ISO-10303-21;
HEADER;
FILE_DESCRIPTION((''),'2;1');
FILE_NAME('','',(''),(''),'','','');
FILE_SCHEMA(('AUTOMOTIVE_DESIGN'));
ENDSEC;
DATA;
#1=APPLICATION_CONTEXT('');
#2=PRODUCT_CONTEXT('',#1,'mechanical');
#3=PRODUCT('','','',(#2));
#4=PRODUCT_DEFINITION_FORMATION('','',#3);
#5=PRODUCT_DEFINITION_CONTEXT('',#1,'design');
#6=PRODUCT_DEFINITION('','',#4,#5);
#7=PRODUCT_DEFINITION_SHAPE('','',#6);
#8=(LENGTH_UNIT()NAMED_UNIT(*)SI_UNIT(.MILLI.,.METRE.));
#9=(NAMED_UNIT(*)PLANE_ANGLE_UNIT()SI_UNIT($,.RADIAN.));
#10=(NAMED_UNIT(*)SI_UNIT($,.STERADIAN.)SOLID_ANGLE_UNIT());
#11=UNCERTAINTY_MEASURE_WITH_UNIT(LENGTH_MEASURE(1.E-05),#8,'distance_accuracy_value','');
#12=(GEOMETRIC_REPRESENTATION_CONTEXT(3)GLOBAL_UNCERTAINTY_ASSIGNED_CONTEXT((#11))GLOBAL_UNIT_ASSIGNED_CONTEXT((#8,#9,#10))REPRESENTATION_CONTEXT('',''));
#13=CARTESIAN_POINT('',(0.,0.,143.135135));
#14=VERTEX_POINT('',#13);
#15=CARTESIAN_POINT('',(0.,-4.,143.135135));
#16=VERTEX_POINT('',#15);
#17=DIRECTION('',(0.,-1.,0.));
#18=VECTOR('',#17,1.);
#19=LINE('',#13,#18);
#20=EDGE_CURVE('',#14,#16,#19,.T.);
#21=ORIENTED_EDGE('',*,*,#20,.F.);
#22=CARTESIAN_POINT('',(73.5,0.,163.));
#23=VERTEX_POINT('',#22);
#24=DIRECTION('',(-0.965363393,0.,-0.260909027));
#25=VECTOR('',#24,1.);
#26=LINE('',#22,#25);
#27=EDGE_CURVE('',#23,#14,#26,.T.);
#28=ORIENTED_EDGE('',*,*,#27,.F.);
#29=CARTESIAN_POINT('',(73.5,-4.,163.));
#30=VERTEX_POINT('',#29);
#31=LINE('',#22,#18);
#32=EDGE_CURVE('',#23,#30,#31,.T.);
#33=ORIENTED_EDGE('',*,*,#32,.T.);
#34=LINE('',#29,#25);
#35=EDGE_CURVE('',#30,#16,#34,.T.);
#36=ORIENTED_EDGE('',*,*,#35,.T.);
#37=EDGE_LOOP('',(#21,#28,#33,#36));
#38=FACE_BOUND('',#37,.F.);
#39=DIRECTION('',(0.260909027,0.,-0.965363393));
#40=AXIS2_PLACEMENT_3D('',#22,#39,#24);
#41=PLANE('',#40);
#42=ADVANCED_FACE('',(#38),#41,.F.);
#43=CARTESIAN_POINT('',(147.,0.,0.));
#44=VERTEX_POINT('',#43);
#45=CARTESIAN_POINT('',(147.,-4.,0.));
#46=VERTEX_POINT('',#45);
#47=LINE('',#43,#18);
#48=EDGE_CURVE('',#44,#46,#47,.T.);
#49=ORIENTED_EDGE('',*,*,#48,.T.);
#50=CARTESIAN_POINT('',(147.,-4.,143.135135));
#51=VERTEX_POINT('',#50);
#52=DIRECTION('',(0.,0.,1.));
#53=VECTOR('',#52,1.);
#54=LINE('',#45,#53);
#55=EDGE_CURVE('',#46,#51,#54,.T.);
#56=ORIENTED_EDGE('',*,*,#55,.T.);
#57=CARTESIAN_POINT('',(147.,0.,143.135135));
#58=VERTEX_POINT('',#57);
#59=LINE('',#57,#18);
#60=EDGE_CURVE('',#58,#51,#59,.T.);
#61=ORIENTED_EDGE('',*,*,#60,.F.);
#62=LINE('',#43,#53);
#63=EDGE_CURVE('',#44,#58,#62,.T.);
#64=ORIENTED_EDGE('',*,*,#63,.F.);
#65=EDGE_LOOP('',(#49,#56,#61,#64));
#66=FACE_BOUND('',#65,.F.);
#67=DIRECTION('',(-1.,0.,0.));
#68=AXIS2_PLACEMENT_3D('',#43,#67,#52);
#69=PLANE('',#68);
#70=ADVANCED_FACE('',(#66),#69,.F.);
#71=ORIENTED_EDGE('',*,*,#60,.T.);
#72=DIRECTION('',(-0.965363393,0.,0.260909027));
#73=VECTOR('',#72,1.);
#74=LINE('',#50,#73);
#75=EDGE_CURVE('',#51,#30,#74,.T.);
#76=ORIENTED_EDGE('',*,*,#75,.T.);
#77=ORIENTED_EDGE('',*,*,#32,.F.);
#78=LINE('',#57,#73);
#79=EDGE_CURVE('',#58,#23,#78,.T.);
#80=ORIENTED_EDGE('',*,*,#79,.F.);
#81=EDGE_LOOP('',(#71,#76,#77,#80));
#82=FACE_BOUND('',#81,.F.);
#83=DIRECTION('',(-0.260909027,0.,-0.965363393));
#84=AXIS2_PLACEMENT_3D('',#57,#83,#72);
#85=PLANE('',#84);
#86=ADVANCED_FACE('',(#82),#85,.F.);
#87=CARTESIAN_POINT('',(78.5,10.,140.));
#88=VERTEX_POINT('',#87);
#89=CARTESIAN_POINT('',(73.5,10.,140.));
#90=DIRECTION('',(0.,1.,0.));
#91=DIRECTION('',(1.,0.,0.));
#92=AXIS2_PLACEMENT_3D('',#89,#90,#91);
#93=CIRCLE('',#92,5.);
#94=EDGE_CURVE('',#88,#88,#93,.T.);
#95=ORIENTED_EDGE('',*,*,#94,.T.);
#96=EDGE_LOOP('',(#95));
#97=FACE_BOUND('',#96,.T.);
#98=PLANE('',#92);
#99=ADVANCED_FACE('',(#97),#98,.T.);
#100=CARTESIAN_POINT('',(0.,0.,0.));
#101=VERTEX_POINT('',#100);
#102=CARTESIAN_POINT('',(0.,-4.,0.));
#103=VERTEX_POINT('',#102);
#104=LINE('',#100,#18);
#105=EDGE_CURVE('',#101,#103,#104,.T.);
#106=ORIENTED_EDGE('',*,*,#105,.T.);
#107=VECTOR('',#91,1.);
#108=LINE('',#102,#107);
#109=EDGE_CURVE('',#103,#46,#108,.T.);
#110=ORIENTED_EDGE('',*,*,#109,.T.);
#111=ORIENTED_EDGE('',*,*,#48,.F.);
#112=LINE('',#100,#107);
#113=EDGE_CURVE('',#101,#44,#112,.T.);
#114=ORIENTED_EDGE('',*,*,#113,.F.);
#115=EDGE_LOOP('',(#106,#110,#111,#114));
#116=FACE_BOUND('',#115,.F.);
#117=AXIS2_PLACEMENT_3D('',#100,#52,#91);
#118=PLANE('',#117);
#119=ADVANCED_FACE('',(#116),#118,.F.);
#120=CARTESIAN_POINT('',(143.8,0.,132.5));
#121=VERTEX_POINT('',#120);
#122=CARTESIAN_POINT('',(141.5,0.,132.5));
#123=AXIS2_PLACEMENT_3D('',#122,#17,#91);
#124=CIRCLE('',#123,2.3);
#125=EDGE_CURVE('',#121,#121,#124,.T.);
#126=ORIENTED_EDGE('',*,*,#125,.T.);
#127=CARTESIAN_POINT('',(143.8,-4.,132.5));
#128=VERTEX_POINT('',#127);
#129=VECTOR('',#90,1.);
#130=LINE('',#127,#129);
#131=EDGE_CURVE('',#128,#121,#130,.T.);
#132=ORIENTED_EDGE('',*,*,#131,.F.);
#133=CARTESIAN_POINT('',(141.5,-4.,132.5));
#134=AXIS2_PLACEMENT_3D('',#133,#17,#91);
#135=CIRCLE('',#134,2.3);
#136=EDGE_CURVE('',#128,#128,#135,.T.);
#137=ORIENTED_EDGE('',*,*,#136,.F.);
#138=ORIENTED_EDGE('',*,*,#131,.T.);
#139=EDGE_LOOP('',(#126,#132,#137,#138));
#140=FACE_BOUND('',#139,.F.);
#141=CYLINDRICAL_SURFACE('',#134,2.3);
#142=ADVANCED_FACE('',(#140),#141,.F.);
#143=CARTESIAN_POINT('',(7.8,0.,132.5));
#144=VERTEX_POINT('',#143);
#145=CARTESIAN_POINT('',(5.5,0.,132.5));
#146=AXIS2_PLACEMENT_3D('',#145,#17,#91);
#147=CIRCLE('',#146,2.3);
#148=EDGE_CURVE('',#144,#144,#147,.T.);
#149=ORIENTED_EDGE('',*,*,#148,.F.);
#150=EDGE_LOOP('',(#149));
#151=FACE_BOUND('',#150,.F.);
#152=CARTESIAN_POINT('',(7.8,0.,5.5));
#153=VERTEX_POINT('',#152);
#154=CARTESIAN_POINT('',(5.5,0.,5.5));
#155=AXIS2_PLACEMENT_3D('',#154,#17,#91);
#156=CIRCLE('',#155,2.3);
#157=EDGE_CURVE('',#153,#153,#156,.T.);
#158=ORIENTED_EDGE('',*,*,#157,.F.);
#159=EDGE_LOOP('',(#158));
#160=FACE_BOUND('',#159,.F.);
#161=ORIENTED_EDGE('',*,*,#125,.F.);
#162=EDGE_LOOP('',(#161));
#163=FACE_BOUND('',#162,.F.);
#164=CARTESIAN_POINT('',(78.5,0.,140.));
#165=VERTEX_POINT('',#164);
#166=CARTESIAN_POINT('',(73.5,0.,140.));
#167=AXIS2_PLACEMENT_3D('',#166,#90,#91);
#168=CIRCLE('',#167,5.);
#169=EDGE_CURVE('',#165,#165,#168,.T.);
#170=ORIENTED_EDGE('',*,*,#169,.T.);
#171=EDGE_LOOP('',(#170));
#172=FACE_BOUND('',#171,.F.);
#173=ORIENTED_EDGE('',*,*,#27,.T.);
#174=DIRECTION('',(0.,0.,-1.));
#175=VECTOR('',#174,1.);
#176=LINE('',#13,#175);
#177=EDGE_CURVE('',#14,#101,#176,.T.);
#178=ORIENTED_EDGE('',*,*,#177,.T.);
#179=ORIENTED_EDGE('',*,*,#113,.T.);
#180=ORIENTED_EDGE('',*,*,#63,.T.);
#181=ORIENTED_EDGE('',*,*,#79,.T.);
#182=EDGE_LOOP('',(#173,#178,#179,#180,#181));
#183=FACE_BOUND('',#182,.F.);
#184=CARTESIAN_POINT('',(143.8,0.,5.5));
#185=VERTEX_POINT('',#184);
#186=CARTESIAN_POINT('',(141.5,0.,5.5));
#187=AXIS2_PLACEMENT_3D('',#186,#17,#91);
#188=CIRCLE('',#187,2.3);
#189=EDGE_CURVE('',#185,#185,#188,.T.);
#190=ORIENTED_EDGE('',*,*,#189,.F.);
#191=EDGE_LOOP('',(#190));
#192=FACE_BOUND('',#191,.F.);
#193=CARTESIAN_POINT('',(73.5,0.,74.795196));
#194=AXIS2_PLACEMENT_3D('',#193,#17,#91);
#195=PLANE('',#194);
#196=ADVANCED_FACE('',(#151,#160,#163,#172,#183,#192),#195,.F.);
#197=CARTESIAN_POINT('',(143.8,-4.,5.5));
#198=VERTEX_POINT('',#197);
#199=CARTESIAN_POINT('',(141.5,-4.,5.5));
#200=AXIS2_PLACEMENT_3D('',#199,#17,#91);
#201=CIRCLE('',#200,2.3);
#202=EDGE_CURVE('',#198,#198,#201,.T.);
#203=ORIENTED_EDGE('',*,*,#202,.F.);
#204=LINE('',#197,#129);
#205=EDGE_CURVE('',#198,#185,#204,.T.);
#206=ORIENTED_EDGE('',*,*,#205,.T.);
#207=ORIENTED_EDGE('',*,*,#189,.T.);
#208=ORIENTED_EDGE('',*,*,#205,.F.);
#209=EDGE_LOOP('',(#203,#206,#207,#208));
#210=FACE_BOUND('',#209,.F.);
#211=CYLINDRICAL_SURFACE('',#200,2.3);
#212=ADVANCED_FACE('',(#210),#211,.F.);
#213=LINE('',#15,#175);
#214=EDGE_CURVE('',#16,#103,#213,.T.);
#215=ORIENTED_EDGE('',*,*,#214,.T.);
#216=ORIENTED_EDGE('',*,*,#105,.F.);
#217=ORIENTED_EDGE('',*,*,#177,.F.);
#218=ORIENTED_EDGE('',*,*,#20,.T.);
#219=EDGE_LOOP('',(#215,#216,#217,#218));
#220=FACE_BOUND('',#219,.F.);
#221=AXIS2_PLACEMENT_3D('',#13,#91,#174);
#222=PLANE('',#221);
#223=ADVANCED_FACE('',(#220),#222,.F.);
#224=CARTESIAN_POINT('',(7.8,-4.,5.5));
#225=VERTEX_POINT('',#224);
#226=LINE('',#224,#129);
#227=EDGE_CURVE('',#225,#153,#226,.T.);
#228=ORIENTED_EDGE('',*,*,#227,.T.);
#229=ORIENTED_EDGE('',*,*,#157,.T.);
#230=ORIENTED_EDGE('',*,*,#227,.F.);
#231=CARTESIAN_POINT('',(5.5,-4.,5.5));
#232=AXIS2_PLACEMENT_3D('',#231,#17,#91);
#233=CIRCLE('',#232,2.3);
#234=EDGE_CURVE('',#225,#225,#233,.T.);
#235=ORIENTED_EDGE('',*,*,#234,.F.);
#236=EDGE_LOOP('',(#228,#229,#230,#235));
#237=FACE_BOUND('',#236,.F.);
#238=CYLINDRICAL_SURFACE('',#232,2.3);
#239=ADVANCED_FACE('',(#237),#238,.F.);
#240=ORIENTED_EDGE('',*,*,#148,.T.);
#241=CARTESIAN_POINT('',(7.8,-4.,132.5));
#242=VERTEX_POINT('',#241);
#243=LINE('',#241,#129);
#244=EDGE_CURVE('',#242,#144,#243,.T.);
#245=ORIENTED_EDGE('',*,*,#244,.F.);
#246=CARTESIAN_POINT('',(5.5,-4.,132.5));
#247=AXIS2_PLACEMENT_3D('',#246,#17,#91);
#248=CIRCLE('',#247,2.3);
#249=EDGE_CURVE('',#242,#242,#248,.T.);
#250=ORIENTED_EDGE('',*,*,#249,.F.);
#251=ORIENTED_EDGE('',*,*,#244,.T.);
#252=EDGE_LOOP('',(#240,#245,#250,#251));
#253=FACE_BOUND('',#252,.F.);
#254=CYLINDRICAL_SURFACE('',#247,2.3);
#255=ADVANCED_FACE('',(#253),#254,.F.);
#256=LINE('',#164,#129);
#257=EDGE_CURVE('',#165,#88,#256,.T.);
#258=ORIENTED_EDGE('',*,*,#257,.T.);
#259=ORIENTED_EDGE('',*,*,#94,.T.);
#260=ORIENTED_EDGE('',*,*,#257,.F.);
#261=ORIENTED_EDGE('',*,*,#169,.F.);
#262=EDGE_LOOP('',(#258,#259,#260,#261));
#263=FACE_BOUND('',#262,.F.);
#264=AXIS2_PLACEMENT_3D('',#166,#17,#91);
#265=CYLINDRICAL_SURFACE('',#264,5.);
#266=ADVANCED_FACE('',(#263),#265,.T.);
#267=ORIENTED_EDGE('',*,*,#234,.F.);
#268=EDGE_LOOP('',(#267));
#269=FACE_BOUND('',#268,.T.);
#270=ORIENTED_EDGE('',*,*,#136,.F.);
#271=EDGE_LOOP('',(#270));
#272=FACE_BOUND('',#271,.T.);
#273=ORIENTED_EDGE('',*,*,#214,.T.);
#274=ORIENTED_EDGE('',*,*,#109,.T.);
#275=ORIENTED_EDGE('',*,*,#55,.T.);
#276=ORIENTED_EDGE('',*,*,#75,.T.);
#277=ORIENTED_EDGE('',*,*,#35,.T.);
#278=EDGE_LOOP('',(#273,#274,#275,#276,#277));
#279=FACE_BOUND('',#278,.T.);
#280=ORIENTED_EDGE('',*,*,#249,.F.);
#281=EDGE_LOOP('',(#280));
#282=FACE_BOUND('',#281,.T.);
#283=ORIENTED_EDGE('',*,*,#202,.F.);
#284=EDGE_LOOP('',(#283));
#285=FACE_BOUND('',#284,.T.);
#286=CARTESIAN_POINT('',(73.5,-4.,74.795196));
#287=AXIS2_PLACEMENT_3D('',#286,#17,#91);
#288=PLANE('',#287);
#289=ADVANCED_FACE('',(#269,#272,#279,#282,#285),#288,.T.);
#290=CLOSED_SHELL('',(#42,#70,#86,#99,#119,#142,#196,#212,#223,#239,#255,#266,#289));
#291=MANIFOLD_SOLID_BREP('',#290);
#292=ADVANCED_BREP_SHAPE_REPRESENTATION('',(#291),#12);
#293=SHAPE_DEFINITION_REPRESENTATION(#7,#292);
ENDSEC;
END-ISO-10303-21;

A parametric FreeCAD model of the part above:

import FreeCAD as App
import Part
import Sketcher
from FreeCAD import Vector


def add_polygon(sketch, points):
    """Adds a closed chain of lines whose ends are joined by coincident constraints."""
    first, n = sketch.GeometryCount, len(points)
    for a, b in zip(points, points[1:] + points[:1]):
        sketch.addGeometry(Part.LineSegment(App.Vector(*a, 0), App.Vector(*b, 0)), False)
    for i in range(n):
        sketch.addConstraint(Sketcher.Constraint("Coincident", first + i, 2, first + (i + 1) % n, 1))

doc = App.newDocument("Part")
body = doc.addObject("PartDesign::Body", "Body")

# Sketch on XZ plane
sketch1 = body.newObject("Sketcher::SketchObject", "Sketch")
sketch1.AttachmentSupport = (doc.getObject("XZ_Plane"), [""])
sketch1.MapMode = "FlatFace"
add_polygon(sketch1, [(0, 0), (147, 0), (147, 143), (74, 163), (0, 143)])  # lines 0-4
sketch1.addConstraint(Sketcher.Constraint("Horizontal", 0))
sketch1.addConstraint(Sketcher.Constraint("Vertical", 1))
sketch1.addConstraint(Sketcher.Constraint("Vertical", 4))
sketch1.addConstraint(Sketcher.Constraint("Coincident", 4, 2, -1, 1))
sketch1.addConstraint(Sketcher.Constraint("Horizontal", 1, 2, 3, 2))
sketch1.addConstraint(Sketcher.Constraint("Equal", 2, 3))
sketch1.addConstraint(Sketcher.Constraint("DistanceX", 0, 1, 0, 2, 147.0))
sketch1.addConstraint(Sketcher.Constraint("DistanceY", -1, 1, 2, 2, 163.0))
sketch1.addConstraint(Sketcher.Constraint("Distance", 2, 76.137132))
pad1 = body.newObject("PartDesign::Pad", "Pad")
pad1.Profile = sketch1
pad1.Length = 4

# Sketch on XZ plane
sketch2 = body.newObject("Sketcher::SketchObject", "Sketch001")
sketch2.AttachmentSupport = (doc.getObject("XZ_Plane"), [""])
sketch2.MapMode = "FlatFace"
sketch2.AttachmentOffset = App.Placement(Vector(0, 0, 4), App.Rotation())
sketch2.addGeometry(Part.Circle(Vector(5.5, 5.5, 0), Vector(0, 0, 1), 2.3), False)
sketch2.addGeometry(Part.Circle(Vector(141.5, 5.5, 0), Vector(0, 0, 1), 2.3), False)
sketch2.addGeometry(Part.Circle(Vector(141.5, 132.5, 0), Vector(0, 0, 1), 2.3), False)
sketch2.addGeometry(Part.Circle(Vector(5.5, 132.5, 0), Vector(0, 0, 1), 2.3), False)
sketch2.addConstraint(Sketcher.Constraint("Equal", 0, 1))
sketch2.addConstraint(Sketcher.Constraint("Equal", 1, 2))
sketch2.addConstraint(Sketcher.Constraint("Equal", 2, 3))
sketch2.addConstraint(Sketcher.Constraint("Horizontal", 0, 3, 1, 3))
sketch2.addConstraint(Sketcher.Constraint("Horizontal", 2, 3, 3, 3))
sketch2.addConstraint(Sketcher.Constraint("Vertical", 1, 3, 2, 3))
sketch2.addConstraint(Sketcher.Constraint("Vertical", 0, 3, 3, 3))
sketch2.addConstraint(Sketcher.Constraint("Diameter", 0, 4.6))
sketch2.addConstraint(Sketcher.Constraint("DistanceX", 0, 3, 1, 3, 136.0))
sketch2.addConstraint(Sketcher.Constraint("DistanceY", 1, 3, 2, 3, 127.0))
sketch2.addConstraint(Sketcher.Constraint("DistanceX", -1, 1, 0, 3, 5.5))
sketch2.addConstraint(Sketcher.Constraint("DistanceY", -1, 1, 0, 3, 5.5))
pocket1 = body.newObject("PartDesign::Pocket", "Pocket")
pocket1.Profile = sketch2
pocket1.Length = 5

# Sketch on XZ plane
sketch3 = body.newObject("Sketcher::SketchObject", "Sketch002")
sketch3.AttachmentSupport = (doc.getObject("XZ_Plane"), [""])
sketch3.MapMode = "FlatFace"
sketch3.addGeometry(Part.Circle(Vector(74, 140, 0), Vector(0, 0, 1), 5), False)
sketch3.addConstraint(Sketcher.Constraint("Diameter", 0, 10.0))
sketch3.addConstraint(Sketcher.Constraint("DistanceY", -1, 1, 0, 3, 140.0))
sketch3.addConstraint(Sketcher.Constraint("DistanceX", -1, 1, 0, 3, 73.5))
pad2 = body.newObject("PartDesign::Pad", "Pad001")
pad2.Profile = sketch3
pad2.Length = 10
pad2.Reversed = True

doc.recompute()
